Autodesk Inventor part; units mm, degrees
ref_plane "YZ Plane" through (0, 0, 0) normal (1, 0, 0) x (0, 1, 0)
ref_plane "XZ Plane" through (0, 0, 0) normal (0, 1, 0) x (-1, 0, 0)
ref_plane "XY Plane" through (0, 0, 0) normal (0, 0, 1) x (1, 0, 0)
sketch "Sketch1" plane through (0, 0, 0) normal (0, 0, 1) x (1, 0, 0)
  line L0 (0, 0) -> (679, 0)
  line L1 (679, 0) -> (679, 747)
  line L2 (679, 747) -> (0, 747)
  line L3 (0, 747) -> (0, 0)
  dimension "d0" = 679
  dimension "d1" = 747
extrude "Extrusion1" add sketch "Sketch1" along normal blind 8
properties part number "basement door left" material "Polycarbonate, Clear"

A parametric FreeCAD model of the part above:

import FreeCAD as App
import Part
import Sketcher
from FreeCAD import Vector

doc = App.newDocument("Part")
body = doc.addObject("PartDesign::Body", "Body")

# Sketch on XY plane
sketch1 = body.newObject("Sketcher::SketchObject", "Sketch")
sketch1.AttachmentSupport = (doc.getObject("XY_Plane"), [""])
sketch1.MapMode = "FlatFace"
sketch1.addGeometry([
    Part.LineSegment(Vector(0, 747, 0), Vector(0, 0, 0)),
    Part.LineSegment(Vector(0, 0, 0), Vector(679, 0, 0)),
    Part.LineSegment(Vector(679, 0, 0), Vector(679, 747, 0)),
    Part.LineSegment(Vector(679, 747, 0), Vector(0, 747, 0)),
], False)
sketch1.addConstraint([
    Sketcher.Constraint("Coincident", 0, 2, 1, 1),
    Sketcher.Constraint("Coincident", 1, 2, 2, 1),
    Sketcher.Constraint("Coincident", 2, 2, 3, 1),
    Sketcher.Constraint("Coincident", 3, 2, 0, 1),
    Sketcher.Constraint("Vertical", 0),
    Sketcher.Constraint("Horizontal", 1),
    Sketcher.Constraint("Vertical", 2),
    Sketcher.Constraint("Horizontal", 3),
    Sketcher.Constraint("Coincident", 0, 2, -1, 1),
    Sketcher.Constraint("DistanceX", 1, 1, 1, 2, 679.0),
    Sketcher.Constraint("DistanceY", 0, 2, 0, 1, 747.0),
])
pad1 = body.newObject("PartDesign::Pad", "Pad")
pad1.Profile = sketch1
pad1.Length = 8

doc.recompute()
